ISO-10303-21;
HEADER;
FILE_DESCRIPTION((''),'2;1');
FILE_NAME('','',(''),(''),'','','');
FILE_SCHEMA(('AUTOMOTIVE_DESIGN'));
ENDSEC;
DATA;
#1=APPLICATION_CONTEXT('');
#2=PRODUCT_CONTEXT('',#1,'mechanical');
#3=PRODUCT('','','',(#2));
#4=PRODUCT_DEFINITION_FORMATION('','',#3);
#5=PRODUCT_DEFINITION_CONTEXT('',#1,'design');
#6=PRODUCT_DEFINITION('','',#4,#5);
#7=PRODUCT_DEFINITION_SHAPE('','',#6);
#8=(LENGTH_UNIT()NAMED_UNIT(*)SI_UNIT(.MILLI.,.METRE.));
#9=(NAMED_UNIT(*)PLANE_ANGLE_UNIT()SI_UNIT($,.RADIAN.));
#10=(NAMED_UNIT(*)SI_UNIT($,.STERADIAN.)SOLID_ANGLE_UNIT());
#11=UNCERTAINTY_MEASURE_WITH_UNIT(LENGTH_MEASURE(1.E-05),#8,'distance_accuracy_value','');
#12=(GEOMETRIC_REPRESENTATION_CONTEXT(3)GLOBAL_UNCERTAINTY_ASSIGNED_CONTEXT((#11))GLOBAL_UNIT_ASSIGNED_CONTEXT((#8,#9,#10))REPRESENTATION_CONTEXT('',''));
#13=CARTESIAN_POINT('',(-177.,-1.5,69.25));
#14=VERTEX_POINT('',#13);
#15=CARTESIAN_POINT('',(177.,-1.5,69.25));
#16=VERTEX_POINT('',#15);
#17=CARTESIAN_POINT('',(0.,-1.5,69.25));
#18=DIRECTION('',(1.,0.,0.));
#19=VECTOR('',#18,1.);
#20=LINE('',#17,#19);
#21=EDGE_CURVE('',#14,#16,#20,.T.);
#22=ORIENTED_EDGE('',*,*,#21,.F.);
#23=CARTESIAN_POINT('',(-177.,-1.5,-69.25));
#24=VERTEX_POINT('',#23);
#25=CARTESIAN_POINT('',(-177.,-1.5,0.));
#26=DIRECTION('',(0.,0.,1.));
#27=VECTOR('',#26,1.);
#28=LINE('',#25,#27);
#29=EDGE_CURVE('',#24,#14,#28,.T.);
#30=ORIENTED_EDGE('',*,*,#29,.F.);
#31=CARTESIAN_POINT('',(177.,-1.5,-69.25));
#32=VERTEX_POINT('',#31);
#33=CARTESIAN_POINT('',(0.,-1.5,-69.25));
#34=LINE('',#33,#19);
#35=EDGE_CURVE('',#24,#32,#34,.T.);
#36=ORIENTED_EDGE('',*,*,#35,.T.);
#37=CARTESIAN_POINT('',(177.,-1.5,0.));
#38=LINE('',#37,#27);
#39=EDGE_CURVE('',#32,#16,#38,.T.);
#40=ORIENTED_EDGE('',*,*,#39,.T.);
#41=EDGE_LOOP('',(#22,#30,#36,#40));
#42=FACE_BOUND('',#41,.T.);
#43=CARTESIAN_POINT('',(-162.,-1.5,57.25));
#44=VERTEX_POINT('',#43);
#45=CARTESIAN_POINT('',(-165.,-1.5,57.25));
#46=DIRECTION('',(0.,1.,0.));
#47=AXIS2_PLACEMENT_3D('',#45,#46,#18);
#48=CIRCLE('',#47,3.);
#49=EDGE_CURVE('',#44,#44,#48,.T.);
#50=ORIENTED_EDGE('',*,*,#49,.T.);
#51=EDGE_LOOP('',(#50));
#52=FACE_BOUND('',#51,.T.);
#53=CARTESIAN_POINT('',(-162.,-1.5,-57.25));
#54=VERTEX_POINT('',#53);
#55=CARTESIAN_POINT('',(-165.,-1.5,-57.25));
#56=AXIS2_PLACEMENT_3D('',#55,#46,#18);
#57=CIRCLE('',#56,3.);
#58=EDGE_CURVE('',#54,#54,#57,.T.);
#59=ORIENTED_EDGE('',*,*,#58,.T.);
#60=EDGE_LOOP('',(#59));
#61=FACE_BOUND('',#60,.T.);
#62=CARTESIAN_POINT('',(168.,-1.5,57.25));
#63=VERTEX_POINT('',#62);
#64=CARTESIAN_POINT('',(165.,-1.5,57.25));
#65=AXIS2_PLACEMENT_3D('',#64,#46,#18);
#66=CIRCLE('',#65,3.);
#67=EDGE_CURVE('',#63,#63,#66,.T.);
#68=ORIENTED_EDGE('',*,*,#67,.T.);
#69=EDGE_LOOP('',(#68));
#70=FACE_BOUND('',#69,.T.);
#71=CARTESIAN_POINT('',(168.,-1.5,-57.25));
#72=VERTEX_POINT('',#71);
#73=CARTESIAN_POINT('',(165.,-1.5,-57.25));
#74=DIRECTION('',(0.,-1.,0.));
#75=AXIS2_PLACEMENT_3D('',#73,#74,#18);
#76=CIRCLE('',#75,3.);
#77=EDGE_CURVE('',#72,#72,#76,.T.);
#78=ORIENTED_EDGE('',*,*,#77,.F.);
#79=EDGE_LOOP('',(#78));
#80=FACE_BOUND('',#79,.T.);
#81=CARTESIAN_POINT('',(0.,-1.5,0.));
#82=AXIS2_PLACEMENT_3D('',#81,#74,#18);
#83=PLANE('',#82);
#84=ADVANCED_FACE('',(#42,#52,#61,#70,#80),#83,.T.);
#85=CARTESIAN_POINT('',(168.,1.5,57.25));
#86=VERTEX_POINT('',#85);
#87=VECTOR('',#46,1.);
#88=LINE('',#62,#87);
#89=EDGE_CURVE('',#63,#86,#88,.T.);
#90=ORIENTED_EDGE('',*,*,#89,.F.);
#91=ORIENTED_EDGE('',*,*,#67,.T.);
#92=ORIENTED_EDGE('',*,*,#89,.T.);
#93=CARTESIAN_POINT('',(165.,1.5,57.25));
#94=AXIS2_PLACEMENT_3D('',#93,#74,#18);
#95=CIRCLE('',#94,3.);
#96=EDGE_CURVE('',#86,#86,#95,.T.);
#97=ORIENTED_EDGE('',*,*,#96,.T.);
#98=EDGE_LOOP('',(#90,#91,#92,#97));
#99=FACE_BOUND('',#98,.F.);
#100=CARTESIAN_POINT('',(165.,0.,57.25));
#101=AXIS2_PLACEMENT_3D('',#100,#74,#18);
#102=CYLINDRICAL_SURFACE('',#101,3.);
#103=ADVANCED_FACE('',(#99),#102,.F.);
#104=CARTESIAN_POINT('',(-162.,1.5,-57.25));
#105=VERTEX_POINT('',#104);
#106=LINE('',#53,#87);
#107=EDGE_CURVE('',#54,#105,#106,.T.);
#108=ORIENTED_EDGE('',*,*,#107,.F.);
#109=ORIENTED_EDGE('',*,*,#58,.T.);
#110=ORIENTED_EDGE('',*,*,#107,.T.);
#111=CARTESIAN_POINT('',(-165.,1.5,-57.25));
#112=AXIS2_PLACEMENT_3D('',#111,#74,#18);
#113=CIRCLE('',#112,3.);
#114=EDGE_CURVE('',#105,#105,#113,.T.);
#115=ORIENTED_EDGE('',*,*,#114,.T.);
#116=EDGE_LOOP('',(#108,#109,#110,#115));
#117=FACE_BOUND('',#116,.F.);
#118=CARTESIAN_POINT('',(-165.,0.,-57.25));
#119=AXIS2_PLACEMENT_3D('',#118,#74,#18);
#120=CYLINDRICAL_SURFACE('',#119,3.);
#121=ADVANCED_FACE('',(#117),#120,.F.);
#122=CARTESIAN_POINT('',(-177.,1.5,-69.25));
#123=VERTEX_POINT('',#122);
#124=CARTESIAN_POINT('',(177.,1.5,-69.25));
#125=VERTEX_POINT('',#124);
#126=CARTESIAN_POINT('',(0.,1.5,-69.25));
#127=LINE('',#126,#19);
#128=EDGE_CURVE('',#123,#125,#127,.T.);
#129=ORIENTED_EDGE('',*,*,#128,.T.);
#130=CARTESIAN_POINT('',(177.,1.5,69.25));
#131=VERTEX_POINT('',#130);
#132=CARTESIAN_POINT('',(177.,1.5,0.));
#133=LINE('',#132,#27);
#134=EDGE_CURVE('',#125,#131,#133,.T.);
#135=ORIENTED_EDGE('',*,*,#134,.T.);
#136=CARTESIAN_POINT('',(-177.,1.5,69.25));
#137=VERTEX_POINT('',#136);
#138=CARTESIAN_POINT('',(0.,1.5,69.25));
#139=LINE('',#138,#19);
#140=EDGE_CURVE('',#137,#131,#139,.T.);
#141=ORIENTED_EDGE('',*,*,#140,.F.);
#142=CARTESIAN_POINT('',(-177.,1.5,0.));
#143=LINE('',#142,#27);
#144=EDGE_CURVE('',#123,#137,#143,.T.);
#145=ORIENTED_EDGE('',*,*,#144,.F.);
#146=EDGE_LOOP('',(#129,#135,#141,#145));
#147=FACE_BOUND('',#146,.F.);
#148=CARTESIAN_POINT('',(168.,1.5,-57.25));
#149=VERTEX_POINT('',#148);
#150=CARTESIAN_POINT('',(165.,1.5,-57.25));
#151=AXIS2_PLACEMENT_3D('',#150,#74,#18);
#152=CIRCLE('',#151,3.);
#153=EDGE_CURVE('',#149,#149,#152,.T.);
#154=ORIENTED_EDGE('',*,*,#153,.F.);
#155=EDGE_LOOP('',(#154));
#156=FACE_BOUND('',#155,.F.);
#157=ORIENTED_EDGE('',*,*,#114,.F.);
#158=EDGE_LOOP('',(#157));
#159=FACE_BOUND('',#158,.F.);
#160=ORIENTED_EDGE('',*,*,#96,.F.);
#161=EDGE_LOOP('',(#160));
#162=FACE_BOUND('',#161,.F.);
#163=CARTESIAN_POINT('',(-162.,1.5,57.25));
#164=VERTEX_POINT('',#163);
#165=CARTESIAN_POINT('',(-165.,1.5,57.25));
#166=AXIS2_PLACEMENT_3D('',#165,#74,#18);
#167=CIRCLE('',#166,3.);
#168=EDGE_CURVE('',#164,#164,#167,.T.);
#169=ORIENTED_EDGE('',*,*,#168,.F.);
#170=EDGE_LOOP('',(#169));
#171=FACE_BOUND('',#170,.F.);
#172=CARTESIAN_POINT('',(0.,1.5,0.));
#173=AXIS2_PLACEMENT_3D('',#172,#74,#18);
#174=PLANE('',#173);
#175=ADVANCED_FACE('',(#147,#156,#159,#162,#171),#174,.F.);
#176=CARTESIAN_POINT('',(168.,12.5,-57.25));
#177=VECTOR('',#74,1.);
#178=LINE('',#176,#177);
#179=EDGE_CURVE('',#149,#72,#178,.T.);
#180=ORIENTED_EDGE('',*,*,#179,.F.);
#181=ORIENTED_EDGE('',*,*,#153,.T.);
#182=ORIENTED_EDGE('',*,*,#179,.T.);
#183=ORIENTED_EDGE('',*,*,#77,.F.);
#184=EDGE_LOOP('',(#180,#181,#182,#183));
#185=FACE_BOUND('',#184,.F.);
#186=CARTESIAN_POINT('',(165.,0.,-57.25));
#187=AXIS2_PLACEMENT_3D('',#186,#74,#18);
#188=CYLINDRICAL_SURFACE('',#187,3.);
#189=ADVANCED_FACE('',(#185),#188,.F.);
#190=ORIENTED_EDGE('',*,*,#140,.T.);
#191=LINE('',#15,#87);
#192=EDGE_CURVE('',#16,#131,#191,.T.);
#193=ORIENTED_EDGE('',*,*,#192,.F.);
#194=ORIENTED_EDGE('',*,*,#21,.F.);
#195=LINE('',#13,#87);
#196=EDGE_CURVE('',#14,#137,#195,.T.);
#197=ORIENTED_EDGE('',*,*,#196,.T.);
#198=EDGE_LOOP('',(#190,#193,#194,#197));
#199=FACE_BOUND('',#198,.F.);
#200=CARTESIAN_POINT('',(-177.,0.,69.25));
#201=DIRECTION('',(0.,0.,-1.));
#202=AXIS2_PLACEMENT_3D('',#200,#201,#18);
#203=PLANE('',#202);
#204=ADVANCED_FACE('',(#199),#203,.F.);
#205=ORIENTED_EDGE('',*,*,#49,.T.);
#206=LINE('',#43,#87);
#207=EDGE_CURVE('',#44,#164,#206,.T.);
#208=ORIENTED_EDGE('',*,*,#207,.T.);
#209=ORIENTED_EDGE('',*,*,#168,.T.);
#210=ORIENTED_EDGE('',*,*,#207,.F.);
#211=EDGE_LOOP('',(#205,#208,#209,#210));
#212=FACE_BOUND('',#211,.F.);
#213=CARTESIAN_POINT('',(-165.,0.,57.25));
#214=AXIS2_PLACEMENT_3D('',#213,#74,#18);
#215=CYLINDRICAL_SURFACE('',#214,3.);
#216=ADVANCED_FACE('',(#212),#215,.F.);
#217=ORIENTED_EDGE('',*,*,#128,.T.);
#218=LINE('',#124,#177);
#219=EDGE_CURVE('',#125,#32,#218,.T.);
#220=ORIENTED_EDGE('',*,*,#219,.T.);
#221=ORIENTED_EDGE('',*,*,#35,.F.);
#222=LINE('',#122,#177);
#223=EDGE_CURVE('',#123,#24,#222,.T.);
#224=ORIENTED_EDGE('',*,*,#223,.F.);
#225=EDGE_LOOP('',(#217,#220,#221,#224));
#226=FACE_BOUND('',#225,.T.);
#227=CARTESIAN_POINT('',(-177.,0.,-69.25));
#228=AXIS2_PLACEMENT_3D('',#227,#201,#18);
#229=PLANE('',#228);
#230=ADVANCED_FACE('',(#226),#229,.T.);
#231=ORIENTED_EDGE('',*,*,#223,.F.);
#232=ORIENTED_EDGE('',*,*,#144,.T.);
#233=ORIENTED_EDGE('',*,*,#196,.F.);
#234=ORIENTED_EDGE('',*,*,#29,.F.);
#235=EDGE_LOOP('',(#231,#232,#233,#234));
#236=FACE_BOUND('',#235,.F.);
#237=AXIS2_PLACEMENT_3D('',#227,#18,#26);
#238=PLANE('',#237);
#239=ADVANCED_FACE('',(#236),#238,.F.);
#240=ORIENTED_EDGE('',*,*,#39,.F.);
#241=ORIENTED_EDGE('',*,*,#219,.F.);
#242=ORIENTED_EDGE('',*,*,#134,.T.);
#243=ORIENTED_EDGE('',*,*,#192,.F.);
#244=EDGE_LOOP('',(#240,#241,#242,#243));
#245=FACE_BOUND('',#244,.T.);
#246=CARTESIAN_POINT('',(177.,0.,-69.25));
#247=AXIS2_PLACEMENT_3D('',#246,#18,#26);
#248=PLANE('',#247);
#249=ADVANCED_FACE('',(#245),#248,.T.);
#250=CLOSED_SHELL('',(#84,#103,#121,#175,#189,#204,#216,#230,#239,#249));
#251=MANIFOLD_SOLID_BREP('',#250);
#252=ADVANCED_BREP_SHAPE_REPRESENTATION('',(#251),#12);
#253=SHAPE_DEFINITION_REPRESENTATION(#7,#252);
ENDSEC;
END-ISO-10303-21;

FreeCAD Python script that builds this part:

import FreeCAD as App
import Part
import Sketcher

V = App.Vector

doc = App.newDocument("Part")
body = doc.addObject("PartDesign::Body", "Body")

sketch1 = body.newObject("Sketcher::SketchObject", "Sketch")
sketch1.AttachmentSupport = (doc.getObject("XZ_Plane"), [""])
sketch1.MapMode = "FlatFace"
sketch1.addGeometry(Part.LineSegment(V(-177, 69.25, 0), V(-177, -69.25, 0)), False)
sketch1.addGeometry(Part.LineSegment(V(-177, -69.25, 0), V(177, -69.25, 0)), False)
sketch1.addGeometry(Part.LineSegment(V(177, -69.25, 0), V(177, 69.25, 0)), False)
sketch1.addGeometry(Part.LineSegment(V(177, 69.25, 0), V(-177, 69.25, 0)), False)
sketch1.addConstraint(Sketcher.Constraint("Coincident", 0, 2, 1, 1))
sketch1.addConstraint(Sketcher.Constraint("Coincident", 1, 2, 2, 1))
sketch1.addConstraint(Sketcher.Constraint("Coincident", 2, 2, 3, 1))
sketch1.addConstraint(Sketcher.Constraint("Coincident", 3, 2, 0, 1))
sketch1.addConstraint(Sketcher.Constraint("Vertical", 0))
sketch1.addConstraint(Sketcher.Constraint("Horizontal", 1))
sketch1.addConstraint(Sketcher.Constraint("Vertical", 2))
sketch1.addConstraint(Sketcher.Constraint("Horizontal", 3))
sketch1.addConstraint(Sketcher.Constraint("Symmetric", 0, 2, 2, 2, -1, 1))
sketch1.addConstraint(Sketcher.Constraint("DistanceX", 1, 1, 1, 2, 354.0))
sketch1.addConstraint(Sketcher.Constraint("DistanceY", 0, 2, 0, 1, 138.5))
pad1 = body.newObject("PartDesign::Pad", "Pad")
pad1.Profile = sketch1
pad1.Length = 3
pad1.Midplane = True

sketch2 = body.newObject("Sketcher::SketchObject", "Sketch001")
sketch2.AttachmentSupport = (doc.getObject("XZ_Plane"), [""])
sketch2.MapMode = "FlatFace"
sketch2.addGeometry(Part.Circle(V(-165, 57.25, 0), V(0, 0, 1), 3), False)
sketch2.addGeometry(Part.Circle(V(-165, -57.25, 0), V(0, 0, 1), 3), False)
sketch2.addGeometry(Part.Circle(V(165, 57.25, 0), V(0, 0, 1), 3), False)
sketch2.addGeometry(Part.Circle(V(165, -57.25, 0), V(0, 0, 1), 3), False)
sketch2.addConstraint(Sketcher.Constraint("Equal", 0, 1))
sketch2.addConstraint(Sketcher.Constraint("Equal", 1, 2))
sketch2.addConstraint(Sketcher.Constraint("Equal", 2, 3))
sketch2.addConstraint(Sketcher.Constraint("Symmetric", 1, 3, 2, 3, -1, 1))
sketch2.addConstraint(Sketcher.Constraint("Symmetric", 0, 3, 3, 3, -1, 1))
sketch2.addConstraint(Sketcher.Constraint("Symmetric", 0, 3, 2, 3, -2))
sketch2.addConstraint(Sketcher.Constraint("Diameter", 0, 6.0))
sketch2.addConstraint(Sketcher.Constraint("DistanceX", 0, 3, -1, 1, 165.0))
sketch2.addConstraint(Sketcher.Constraint("DistanceY", 1, 3, 0, 3, 114.5))
pocket1 = body.newObject("PartDesign::Pocket", "Pocket")
pocket1.Profile = sketch2
pocket1.Length = 25
pocket1.Midplane = True

doc.recompute()
